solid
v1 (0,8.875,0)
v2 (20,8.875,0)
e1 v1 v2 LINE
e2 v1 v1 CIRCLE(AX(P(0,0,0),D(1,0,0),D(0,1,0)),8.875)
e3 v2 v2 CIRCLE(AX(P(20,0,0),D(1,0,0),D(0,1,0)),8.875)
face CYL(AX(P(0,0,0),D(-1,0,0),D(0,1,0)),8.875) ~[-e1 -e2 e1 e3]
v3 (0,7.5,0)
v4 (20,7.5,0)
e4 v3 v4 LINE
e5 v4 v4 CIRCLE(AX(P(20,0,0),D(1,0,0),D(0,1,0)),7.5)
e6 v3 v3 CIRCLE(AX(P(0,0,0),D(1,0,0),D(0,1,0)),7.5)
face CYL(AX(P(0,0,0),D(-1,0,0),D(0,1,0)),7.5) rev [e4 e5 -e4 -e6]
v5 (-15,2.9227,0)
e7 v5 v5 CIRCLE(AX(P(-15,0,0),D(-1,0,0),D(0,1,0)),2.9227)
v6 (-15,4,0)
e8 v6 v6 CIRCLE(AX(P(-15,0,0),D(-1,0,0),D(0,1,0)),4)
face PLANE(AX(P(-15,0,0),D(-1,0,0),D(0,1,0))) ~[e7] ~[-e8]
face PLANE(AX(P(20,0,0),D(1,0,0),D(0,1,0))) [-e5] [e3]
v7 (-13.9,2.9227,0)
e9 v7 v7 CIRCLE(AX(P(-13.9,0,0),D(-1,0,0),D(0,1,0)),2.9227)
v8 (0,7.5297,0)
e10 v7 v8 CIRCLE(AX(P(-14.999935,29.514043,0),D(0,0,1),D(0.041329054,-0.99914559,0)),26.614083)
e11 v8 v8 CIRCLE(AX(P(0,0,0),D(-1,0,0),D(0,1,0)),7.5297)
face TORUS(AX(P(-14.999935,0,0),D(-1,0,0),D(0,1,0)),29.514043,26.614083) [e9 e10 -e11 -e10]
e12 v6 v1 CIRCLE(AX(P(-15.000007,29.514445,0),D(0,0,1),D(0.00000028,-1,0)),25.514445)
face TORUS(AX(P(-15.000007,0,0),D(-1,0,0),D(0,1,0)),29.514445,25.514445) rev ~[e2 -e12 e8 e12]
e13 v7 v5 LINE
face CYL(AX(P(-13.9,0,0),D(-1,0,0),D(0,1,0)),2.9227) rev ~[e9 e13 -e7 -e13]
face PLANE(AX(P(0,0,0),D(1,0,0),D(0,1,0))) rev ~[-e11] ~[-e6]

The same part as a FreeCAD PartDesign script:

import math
import FreeCAD as App
import Part
import Sketcher
from FreeCAD import Vector

doc = App.newDocument("Part")
body = doc.addObject("PartDesign::Body", "Body")

# Sketch on YZ plane
sketch1 = body.newObject("Sketcher::SketchObject", "Sketch")
sketch1.AttachmentSupport = (doc.getObject("YZ_Plane"), [""])
sketch1.MapMode = "FlatFace"
sketch1.addGeometry([
    Part.Circle(Vector(0, 0, 0), Vector(0, 0, 1), 9),
    Part.Circle(Vector(0, 0, 0), Vector(0, 0, 1), 8),
], False)
sketch1.addConstraint([
    Sketcher.Constraint("Coincident", 0, 3, -1, 1),
    Sketcher.Constraint("Coincident", 1, 3, -1, 1),
    Sketcher.Constraint("Diameter", 1, 15.0),
    Sketcher.Constraint("Diameter", 0, 17.75),
])
pad1 = body.newObject("PartDesign::Pad", "Pad")
pad1.Profile = sketch1
pad1.Length = 20

# Sketch on XY plane
sketch2 = body.newObject("Sketcher::SketchObject", "Sketch001")
sketch2.AttachmentSupport = (doc.getObject("XY_Plane"), [""])
sketch2.MapMode = "FlatFace"
sketch2.addGeometry([
    Part.ArcOfCircle(Part.Circle(Vector(-15, 29.5, 0), Vector(0, 0, 1), 25.5), math.radians(-90), math.radians(-54)),  # 0
    Part.LineSegment(Vector(-15, 4, 0), Vector(-15, 2.9, 0)),  # 1
    Part.LineSegment(Vector(-15, 2.9, 0), Vector(-13.9, 2.9, 0)),  # 2
    Part.ArcOfCircle(Part.Circle(Vector(-15, 29.5, 0), Vector(0, 0, 1), 26.6), math.radians(-88), math.radians(-56)),  # 3
    Part.LineSegment(Vector(0, 7.5, 0), Vector(0, 8.9, 0)),  # 4
], False)
sketch2.addConstraint([
    Sketcher.Constraint("Coincident", 0, 1, 1, 1),
    Sketcher.Constraint("Coincident", 1, 2, 2, 1),
    Sketcher.Constraint("Coincident", 2, 2, 3, 1),
    Sketcher.Constraint("Coincident", 3, 2, 4, 1),
    Sketcher.Constraint("Coincident", 4, 2, 0, 2),
    Sketcher.Constraint("Vertical", 1),
    Sketcher.Constraint("Horizontal", 2),
    Sketcher.Constraint("Vertical", 4),
    Sketcher.Constraint("Coincident", 3, 3, 0, 3),
    Sketcher.Constraint("PointOnObject", 3, 2, -2),
    Sketcher.Constraint("Vertical", 3, 3, 0, 1),
    Sketcher.Constraint("DistanceX", 2, 1, 2, 2, 1.1),
    Sketcher.Constraint("DistanceX", 0, 3, -1, 1, 15.0),
    Sketcher.Constraint("DistanceY", -1, 1, 0, 1, 4.0),
    Sketcher.Constraint("Radius", 0, 25.5144),
    Sketcher.Constraint("Radius", 3, 26.6144),
])
revolution = body.newObject("PartDesign::Revolution", "Revolution")
revolution.Profile = sketch2
revolution.ReferenceAxis = (sketch2, ["H_Axis"])
revolution.Angle = 360

doc.recompute()
